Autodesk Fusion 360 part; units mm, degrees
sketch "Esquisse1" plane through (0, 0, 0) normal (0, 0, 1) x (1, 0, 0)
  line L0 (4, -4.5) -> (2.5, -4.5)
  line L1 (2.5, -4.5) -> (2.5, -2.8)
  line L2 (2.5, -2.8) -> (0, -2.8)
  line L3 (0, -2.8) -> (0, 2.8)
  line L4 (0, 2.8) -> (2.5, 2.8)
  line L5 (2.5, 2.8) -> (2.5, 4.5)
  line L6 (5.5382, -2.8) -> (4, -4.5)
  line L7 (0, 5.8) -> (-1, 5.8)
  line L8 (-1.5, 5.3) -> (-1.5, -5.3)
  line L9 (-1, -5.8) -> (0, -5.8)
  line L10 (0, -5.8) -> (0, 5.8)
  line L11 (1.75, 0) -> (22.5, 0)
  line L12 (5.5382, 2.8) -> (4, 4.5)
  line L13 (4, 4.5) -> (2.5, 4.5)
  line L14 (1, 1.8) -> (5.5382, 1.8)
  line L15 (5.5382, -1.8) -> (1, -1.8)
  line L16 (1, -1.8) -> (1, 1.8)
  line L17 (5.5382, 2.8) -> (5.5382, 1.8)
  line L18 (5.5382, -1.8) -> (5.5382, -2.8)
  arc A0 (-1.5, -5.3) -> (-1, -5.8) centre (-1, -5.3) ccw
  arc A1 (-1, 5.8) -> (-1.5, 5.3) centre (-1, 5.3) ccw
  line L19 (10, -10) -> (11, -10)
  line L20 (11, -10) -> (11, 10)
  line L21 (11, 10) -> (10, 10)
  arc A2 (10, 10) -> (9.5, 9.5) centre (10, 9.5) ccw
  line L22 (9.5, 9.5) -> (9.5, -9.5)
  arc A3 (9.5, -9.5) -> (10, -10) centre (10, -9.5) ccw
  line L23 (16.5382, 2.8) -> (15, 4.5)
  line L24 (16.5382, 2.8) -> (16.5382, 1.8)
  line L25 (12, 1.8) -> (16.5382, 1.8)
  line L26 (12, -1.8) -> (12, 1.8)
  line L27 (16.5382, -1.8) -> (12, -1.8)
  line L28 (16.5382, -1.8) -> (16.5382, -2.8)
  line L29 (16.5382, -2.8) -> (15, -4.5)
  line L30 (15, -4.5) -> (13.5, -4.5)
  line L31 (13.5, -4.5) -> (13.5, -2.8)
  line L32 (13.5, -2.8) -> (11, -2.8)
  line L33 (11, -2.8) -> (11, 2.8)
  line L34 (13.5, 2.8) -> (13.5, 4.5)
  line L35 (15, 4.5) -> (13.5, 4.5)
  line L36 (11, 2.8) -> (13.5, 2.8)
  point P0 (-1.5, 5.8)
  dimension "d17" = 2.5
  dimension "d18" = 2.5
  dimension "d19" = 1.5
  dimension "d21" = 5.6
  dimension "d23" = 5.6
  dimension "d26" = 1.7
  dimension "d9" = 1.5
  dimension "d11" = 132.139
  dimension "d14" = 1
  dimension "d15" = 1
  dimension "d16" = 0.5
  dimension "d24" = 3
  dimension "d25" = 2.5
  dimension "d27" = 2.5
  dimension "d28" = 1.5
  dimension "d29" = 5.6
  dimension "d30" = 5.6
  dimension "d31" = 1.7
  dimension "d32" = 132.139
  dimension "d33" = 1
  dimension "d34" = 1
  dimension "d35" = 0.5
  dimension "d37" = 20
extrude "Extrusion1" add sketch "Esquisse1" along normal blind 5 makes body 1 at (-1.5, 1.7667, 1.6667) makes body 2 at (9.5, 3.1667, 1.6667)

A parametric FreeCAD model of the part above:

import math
import FreeCAD as App
import Part
import Sketcher
Q = App.Units.Quantity

doc = App.newDocument("Part")
body = doc.addObject("PartDesign::Body", "Body")
body.AllowCompound = True

# Sketch on XY plane
sketch1 = body.newObject("Sketcher::SketchObject", "Sketch")
sketch1.AttachmentSupport = (doc.getObject("XY_Plane"), [""])
sketch1.MapMode = "FlatFace"
sketch1.addGeometry([
    Part.LineSegment(App.Vector(2.5, -4.5, 0), App.Vector(4, -4.5, 0)),  # 0
    Part.LineSegment(App.Vector(4, -4.5, 0), App.Vector(5.5, -2.8, 0)),  # 1
    Part.LineSegment(App.Vector(5.5, -2.8, 0), App.Vector(5.5, -1.8, 0)),  # 2
    Part.LineSegment(App.Vector(5.5, -1.8, 0), App.Vector(1, -1.8, 0)),  # 3
    Part.LineSegment(App.Vector(1, -1.8, 0), App.Vector(1, 1.8, 0)),  # 4
    Part.LineSegment(App.Vector(1, 1.8, 0), App.Vector(5.5, 1.8, 0)),  # 5
    Part.LineSegment(App.Vector(5.5, 1.8, 0), App.Vector(5.5, 2.8, 0)),  # 6
    Part.LineSegment(App.Vector(5.5, 2.8, 0), App.Vector(4, 4.5, 0)),  # 7
    Part.LineSegment(App.Vector(4, 4.5, 0), App.Vector(2.5, 4.5, 0)),  # 8
    Part.LineSegment(App.Vector(2.5, 4.5, 0), App.Vector(2.5, 2.8, 0)),  # 9
    Part.LineSegment(App.Vector(2.5, 2.8, 0), App.Vector(0, 2.8, 0)),  # 10
    Part.LineSegment(App.Vector(0, 2.8, 0), App.Vector(0, 5.8, 0)),  # 11
    Part.LineSegment(App.Vector(0, 5.8, 0), App.Vector(-1, 5.8, 0)),  # 12
    Part.ArcOfCircle(Part.Circle(App.Vector(-1, 5.3, 0), App.Vector(0, 0, 1), 0.5), math.radians(90), math.radians(180)),  # 13
    Part.LineSegment(App.Vector(-1.5, 5.3, 0), App.Vector(-1.5, -5.3, 0)),  # 14
    Part.ArcOfCircle(Part.Circle(App.Vector(-1, -5.3, 0), App.Vector(0, 0, 1), 0.5), math.radians(180), math.radians(270)),  # 15
    Part.LineSegment(App.Vector(-1, -5.8, 0), App.Vector(0, -5.8, 0)),  # 16
    Part.LineSegment(App.Vector(0, -5.8, 0), App.Vector(0, -2.8, 0)),  # 17
    Part.LineSegment(App.Vector(0, -2.8, 0), App.Vector(2.5, -2.8, 0)),  # 18
    Part.LineSegment(App.Vector(2.5, -2.8, 0), App.Vector(2.5, -4.5, 0)),  # 19
    Part.LineSegment(App.Vector(9.5, 9.5, 0), App.Vector(9.5, -9.5, 0)),  # 20
    Part.ArcOfCircle(Part.Circle(App.Vector(10, -9.5, 0), App.Vector(0, 0, 1), 0.5), math.radians(180), math.radians(270)),  # 21
    Part.LineSegment(App.Vector(10, -10, 0), App.Vector(11, -10, 0)),  # 22
    Part.LineSegment(App.Vector(11, -10, 0), App.Vector(11, -2.8, 0)),  # 23
    Part.LineSegment(App.Vector(11, -2.8, 0), App.Vector(13.5, -2.8, 0)),  # 24
    Part.LineSegment(App.Vector(13.5, -2.8, 0), App.Vector(13.5, -4.5, 0)),  # 25
    Part.LineSegment(App.Vector(13.5, -4.5, 0), App.Vector(15, -4.5, 0)),  # 26
    Part.LineSegment(App.Vector(15, -4.5, 0), App.Vector(16.5, -2.8, 0)),  # 27
    Part.LineSegment(App.Vector(16.5, -2.8, 0), App.Vector(16.5, -1.8, 0)),  # 28
    Part.LineSegment(App.Vector(16.5, -1.8, 0), App.Vector(12, -1.8, 0)),  # 29
    Part.LineSegment(App.Vector(12, -1.8, 0), App.Vector(12, 1.8, 0)),  # 30
    Part.LineSegment(App.Vector(12, 1.8, 0), App.Vector(16.5, 1.8, 0)),  # 31
    Part.LineSegment(App.Vector(16.5, 1.8, 0), App.Vector(16.5, 2.8, 0)),  # 32
    Part.LineSegment(App.Vector(16.5, 2.8, 0), App.Vector(15, 4.5, 0)),  # 33
    Part.LineSegment(App.Vector(15, 4.5, 0), App.Vector(13.5, 4.5, 0)),  # 34
    Part.LineSegment(App.Vector(13.5, 4.5, 0), App.Vector(13.5, 2.8, 0)),  # 35
    Part.LineSegment(App.Vector(13.5, 2.8, 0), App.Vector(11, 2.8, 0)),  # 36
    Part.LineSegment(App.Vector(11, 2.8, 0), App.Vector(11, 10, 0)),  # 37
    Part.LineSegment(App.Vector(11, 10, 0), App.Vector(10, 10, 0)),  # 38
    Part.ArcOfCircle(Part.Circle(App.Vector(10, 9.5, 0), App.Vector(0, 0, 1), 0.5), math.radians(90), math.radians(180)),  # 39
], False)
sketch1.addConstraint([
    Sketcher.Constraint("Coincident", 0, 2, 1, 1),
    Sketcher.Constraint("Coincident", 1, 2, 2, 1),
    Sketcher.Constraint("Coincident", 2, 2, 3, 1),
    Sketcher.Constraint("Coincident", 3, 2, 4, 1),
    Sketcher.Constraint("Coincident", 4, 2, 5, 1),
    Sketcher.Constraint("Coincident", 5, 2, 6, 1),
    Sketcher.Constraint("Coincident", 6, 2, 7, 1),
    Sketcher.Constraint("Coincident", 7, 2, 8, 1),
    Sketcher.Constraint("Coincident", 8, 2, 9, 1),
    Sketcher.Constraint("Coincident", 9, 2, 10, 1),
    Sketcher.Constraint("Coincident", 10, 2, 11, 1),
    Sketcher.Constraint("Coincident", 11, 2, 12, 1),
    Sketcher.Constraint("Tangent", 12, 2, 13, 1),
    Sketcher.Constraint("Tangent", 13, 2, 14, 1),
    Sketcher.Constraint("Tangent", 14, 2, 15, 1),
    Sketcher.Constraint("Tangent", 15, 2, 16, 1),
    Sketcher.Constraint("Coincident", 16, 2, 17, 1),
    Sketcher.Constraint("Coincident", 17, 2, 18, 1),
    Sketcher.Constraint("Coincident", 18, 2, 19, 1),
    Sketcher.Constraint("Coincident", 19, 2, 0, 1),
    Sketcher.Constraint("Tangent", 20, 2, 21, 1),
    Sketcher.Constraint("Tangent", 21, 2, 22, 1),
    Sketcher.Constraint("Coincident", 22, 2, 23, 1),
    Sketcher.Constraint("Coincident", 23, 2, 24, 1),
    Sketcher.Constraint("Coincident", 24, 2, 25, 1),
    Sketcher.Constraint("Coincident", 25, 2, 26, 1),
    Sketcher.Constraint("Coincident", 26, 2, 27, 1),
    Sketcher.Constraint("Coincident", 27, 2, 28, 1),
    Sketcher.Constraint("Coincident", 28, 2, 29, 1),
    Sketcher.Constraint("Coincident", 29, 2, 30, 1),
    Sketcher.Constraint("Coincident", 30, 2, 31, 1),
    Sketcher.Constraint("Coincident", 31, 2, 32, 1),
    Sketcher.Constraint("Coincident", 32, 2, 33, 1),
    Sketcher.Constraint("Coincident", 33, 2, 34, 1),
    Sketcher.Constraint("Coincident", 34, 2, 35, 1),
    Sketcher.Constraint("Coincident", 35, 2, 36, 1),
    Sketcher.Constraint("Coincident", 36, 2, 37, 1),
    Sketcher.Constraint("Coincident", 37, 2, 38, 1),
    Sketcher.Constraint("Tangent", 38, 2, 39, 1),
    Sketcher.Constraint("Tangent", 39, 2, 20, 1),
    Sketcher.Constraint("Horizontal", 0),
    Sketcher.Constraint("Vertical", 2),
    Sketcher.Constraint("Horizontal", 3),
    Sketcher.Constraint("Vertical", 4),
    Sketcher.Constraint("Horizontal", 5),
    Sketcher.Constraint("Vertical", 6),
    Sketcher.Constraint("Horizontal", 8),
    Sketcher.Constraint("Vertical", 9),
    Sketcher.Constraint("Horizontal", 10),
    Sketcher.Constraint("Vertical", 11),
    Sketcher.Constraint("Horizontal", 12),
    Sketcher.Constraint("Vertical", 14),
    Sketcher.Constraint("Horizontal", 16),
    Sketcher.Constraint("Vertical", 17),
    Sketcher.Constraint("Horizontal", 18),
    Sketcher.Constraint("Vertical", 19),
    Sketcher.Constraint("Vertical", 20),
    Sketcher.Constraint("Horizontal", 22),
    Sketcher.Constraint("Vertical", 23),
    Sketcher.Constraint("Horizontal", 24),
    Sketcher.Constraint("Vertical", 25),
    Sketcher.Constraint("Horizontal", 26),
    Sketcher.Constraint("Vertical", 28),
    Sketcher.Constraint("Horizontal", 29),
    Sketcher.Constraint("Vertical", 30),
    Sketcher.Constraint("Horizontal", 31),
    Sketcher.Constraint("Vertical", 32),
    Sketcher.Constraint("Horizontal", 34),
    Sketcher.Constraint("Vertical", 35),
    Sketcher.Constraint("Horizontal", 36),
    Sketcher.Constraint("Vertical", 37),
    Sketcher.Constraint("Horizontal", 38),
    Sketcher.Constraint("Equal", 13, 15),
    Sketcher.Constraint("Equal", 15, 21),
    Sketcher.Constraint("Equal", 21, 39),
    Sketcher.Constraint("Symmetric", 11, 2, 16, 2, -1, 1),
    Sketcher.Constraint("Symmetric", 2, 2, 5, 2, -1),
    Sketcher.Constraint("Symmetric", 0, 2, 7, 2, -1),
    Sketcher.Constraint("Symmetric", 10, 2, 17, 2, -1),
    Sketcher.Constraint("Symmetric", 28, 2, 31, 2, -1),
    Sketcher.Constraint("Symmetric", 26, 2, 33, 2, -1),
    Sketcher.Constraint("Symmetric", 24, 2, 35, 2, -1),
    Sketcher.Constraint("Symmetric", 22, 2, 37, 2, -1),
    Sketcher.Constraint("Parallel", 1, 27),
    Sketcher.Constraint("Parallel", 7, 33),
    Sketcher.Constraint("Horizontal", 6, 2, 9, 2),
    Sketcher.Constraint("Horizontal", 1, 2, 17, 2),
    Sketcher.Constraint("Horizontal", 18, 2, 23, 2),
    Sketcher.Constraint("Horizontal", 19, 2, 25, 2),
    Sketcher.Constraint("Horizontal", 24, 2, 27, 2),
    Sketcher.Constraint("Horizontal", 3, 2, 28, 2),
    Sketcher.Constraint("Vertical", 9, 2, 18, 2),
    Sketcher.Constraint("Equal", 16, 22),
    Sketcher.Constraint("Equal", 18, 24),
    Sketcher.Constraint("Equal", 8, 26),
    Sketcher.Constraint("Equal", 5, 29),
    Sketcher.Constraint("Equal", 38, 2),
    Sketcher.Constraint("Radius", 13, Q("0.5 mm")),
    Sketcher.Constraint("DistanceX", 12, 2, 12, 1, Q("1 mm")),
    Sketcher.Constraint("DistanceY", 11, 1, 11, 2, Q("3 mm")),
    Sketcher.Constraint("DistanceX", 0, 1, 0, 2, Q("1.5 mm")),
    Sketcher.Constraint("DistanceX", 10, 2, 10, 1, Q("2.5 mm")),
    Sketcher.Constraint("DistanceY", 9, 2, 9, 1, Q("1.7 mm")),
    Sketcher.Constraint("DistanceX", -1, 1, 3, 2, Q("1 mm")),
    Sketcher.Constraint("Angle", 7, Q("132.1395 deg")),
    Sketcher.Constraint("DistanceY", 1, 2, 6, 2, Q("5.6 mm")),
    Sketcher.Constraint("DistanceY", 20, 2, 20, 1, Q("19 mm")),
    Sketcher.Constraint("DistanceX", -1, 1, 21, 3, Q("10 mm")),
])
pad1 = body.newObject("PartDesign::Pad", "Pad")
pad1.Profile = sketch1
pad1.Length = 5

doc.recompute()
